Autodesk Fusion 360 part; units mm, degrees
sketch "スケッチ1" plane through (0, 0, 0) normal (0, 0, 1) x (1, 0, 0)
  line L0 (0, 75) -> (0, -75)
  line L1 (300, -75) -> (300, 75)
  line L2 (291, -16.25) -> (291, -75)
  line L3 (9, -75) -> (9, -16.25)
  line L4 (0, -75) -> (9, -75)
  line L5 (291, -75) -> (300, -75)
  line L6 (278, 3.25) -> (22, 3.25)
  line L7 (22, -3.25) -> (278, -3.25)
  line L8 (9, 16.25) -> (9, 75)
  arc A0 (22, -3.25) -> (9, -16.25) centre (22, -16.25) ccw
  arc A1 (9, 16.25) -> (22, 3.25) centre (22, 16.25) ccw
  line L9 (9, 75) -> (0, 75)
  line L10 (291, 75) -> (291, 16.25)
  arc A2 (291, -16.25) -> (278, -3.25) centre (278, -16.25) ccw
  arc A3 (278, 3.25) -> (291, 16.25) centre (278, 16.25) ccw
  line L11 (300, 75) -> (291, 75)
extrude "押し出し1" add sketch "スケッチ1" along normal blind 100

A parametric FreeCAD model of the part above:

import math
import FreeCAD as App
import Part
import Sketcher
Q = App.Units.Quantity

doc = App.newDocument("Part")
body = doc.addObject("PartDesign::Body", "Body")

# Sketch on XY plane
sketch1 = body.newObject("Sketcher::SketchObject", "Sketch")
sketch1.AttachmentSupport = (doc.getObject("XY_Plane"), [""])
sketch1.MapMode = "FlatFace"
sketch1.addGeometry([
    Part.LineSegment(App.Vector(9, 75, 0), App.Vector(0, 75, 0)),  # 0
    Part.LineSegment(App.Vector(0, 75, 0), App.Vector(0, -75, 0)),  # 1
    Part.LineSegment(App.Vector(0, -75, 0), App.Vector(9, -75, 0)),  # 2
    Part.LineSegment(App.Vector(9, -75, 0), App.Vector(9, -16.25, 0)),  # 3
    Part.ArcOfCircle(Part.Circle(App.Vector(22, -16.25, 0), App.Vector(0, 0, 1), 13), math.radians(90), math.radians(180)),  # 4
    Part.LineSegment(App.Vector(22, -3.25, 0), App.Vector(278, -3.25, 0)),  # 5
    Part.ArcOfCircle(Part.Circle(App.Vector(278, -16.25, 0), App.Vector(0, 0, 1), 13), math.radians(0), math.radians(90)),  # 6
    Part.LineSegment(App.Vector(291, -16.25, 0), App.Vector(291, -75, 0)),  # 7
    Part.LineSegment(App.Vector(291, -75, 0), App.Vector(300, -75, 0)),  # 8
    Part.LineSegment(App.Vector(300, -75, 0), App.Vector(300, 75, 0)),  # 9
    Part.LineSegment(App.Vector(300, 75, 0), App.Vector(291, 75, 0)),  # 10
    Part.LineSegment(App.Vector(291, 75, 0), App.Vector(291, 16.25, 0)),  # 11
    Part.ArcOfCircle(Part.Circle(App.Vector(278, 16.25, 0), App.Vector(0, 0, 1), 13), math.radians(-90), math.radians(0)),  # 12
    Part.LineSegment(App.Vector(278, 3.25, 0), App.Vector(22, 3.25, 0)),  # 13
    Part.ArcOfCircle(Part.Circle(App.Vector(22, 16.25, 0), App.Vector(0, 0, 1), 13), math.radians(180), math.radians(270)),  # 14
    Part.LineSegment(App.Vector(9, 16.25, 0), App.Vector(9, 75, 0)),  # 15
], False)
sketch1.addConstraint([
    Sketcher.Constraint("Coincident", 0, 2, 1, 1),
    Sketcher.Constraint("Coincident", 1, 2, 2, 1),
    Sketcher.Constraint("Coincident", 2, 2, 3, 1),
    Sketcher.Constraint("Tangent", 3, 2, 4, 2),
    Sketcher.Constraint("Tangent", 4, 1, 5, 1),
    Sketcher.Constraint("Tangent", 5, 2, 6, 2),
    Sketcher.Constraint("Tangent", 6, 1, 7, 1),
    Sketcher.Constraint("Coincident", 7, 2, 8, 1),
    Sketcher.Constraint("Coincident", 8, 2, 9, 1),
    Sketcher.Constraint("Coincident", 9, 2, 10, 1),
    Sketcher.Constraint("Coincident", 10, 2, 11, 1),
    Sketcher.Constraint("Tangent", 11, 2, 12, 2),
    Sketcher.Constraint("Tangent", 12, 1, 13, 1),
    Sketcher.Constraint("Tangent", 13, 2, 14, 2),
    Sketcher.Constraint("Tangent", 14, 1, 15, 1),
    Sketcher.Constraint("Coincident", 15, 2, 0, 1),
    Sketcher.Constraint("Horizontal", 0),
    Sketcher.Constraint("Vertical", 1),
    Sketcher.Constraint("Horizontal", 2),
    Sketcher.Constraint("Vertical", 3),
    Sketcher.Constraint("Horizontal", 5),
    Sketcher.Constraint("Vertical", 7),
    Sketcher.Constraint("Horizontal", 8),
    Sketcher.Constraint("Vertical", 9),
    Sketcher.Constraint("Horizontal", 10),
    Sketcher.Constraint("Vertical", 11),
    Sketcher.Constraint("Horizontal", 13),
    Sketcher.Constraint("Vertical", 15),
    Sketcher.Constraint("Equal", 4, 6),
    Sketcher.Constraint("Equal", 6, 12),
    Sketcher.Constraint("Equal", 12, 14),
    Sketcher.Constraint("Symmetric", 0, 2, 1, 2, -1, 1),
    Sketcher.Constraint("Symmetric", 6, 3, 12, 3, -1),
    Sketcher.Constraint("Horizontal", 2, 2, 7, 2),
    Sketcher.Constraint("Horizontal", 0, 2, 9, 2),
    Sketcher.Constraint("Vertical", 4, 3, 14, 3),
    Sketcher.Constraint("Equal", 2, 8),
    Sketcher.Constraint("Radius", 4, Q("13 mm")),
    Sketcher.Constraint("DistanceX", 0, 2, 0, 1, Q("9 mm")),
    Sketcher.Constraint("DistanceX", 5, 1, 5, 2, Q("256 mm")),
    Sketcher.Constraint("DistanceY", 1, 2, 1, 1, Q("150 mm")),
    Sketcher.Constraint("DistanceY", 3, 1, 3, 2, Q("58.75 mm")),
])
pad1 = body.newObject("PartDesign::Pad", "Pad")
pad1.Profile = sketch1
pad1.Length = 100

doc.recompute()
